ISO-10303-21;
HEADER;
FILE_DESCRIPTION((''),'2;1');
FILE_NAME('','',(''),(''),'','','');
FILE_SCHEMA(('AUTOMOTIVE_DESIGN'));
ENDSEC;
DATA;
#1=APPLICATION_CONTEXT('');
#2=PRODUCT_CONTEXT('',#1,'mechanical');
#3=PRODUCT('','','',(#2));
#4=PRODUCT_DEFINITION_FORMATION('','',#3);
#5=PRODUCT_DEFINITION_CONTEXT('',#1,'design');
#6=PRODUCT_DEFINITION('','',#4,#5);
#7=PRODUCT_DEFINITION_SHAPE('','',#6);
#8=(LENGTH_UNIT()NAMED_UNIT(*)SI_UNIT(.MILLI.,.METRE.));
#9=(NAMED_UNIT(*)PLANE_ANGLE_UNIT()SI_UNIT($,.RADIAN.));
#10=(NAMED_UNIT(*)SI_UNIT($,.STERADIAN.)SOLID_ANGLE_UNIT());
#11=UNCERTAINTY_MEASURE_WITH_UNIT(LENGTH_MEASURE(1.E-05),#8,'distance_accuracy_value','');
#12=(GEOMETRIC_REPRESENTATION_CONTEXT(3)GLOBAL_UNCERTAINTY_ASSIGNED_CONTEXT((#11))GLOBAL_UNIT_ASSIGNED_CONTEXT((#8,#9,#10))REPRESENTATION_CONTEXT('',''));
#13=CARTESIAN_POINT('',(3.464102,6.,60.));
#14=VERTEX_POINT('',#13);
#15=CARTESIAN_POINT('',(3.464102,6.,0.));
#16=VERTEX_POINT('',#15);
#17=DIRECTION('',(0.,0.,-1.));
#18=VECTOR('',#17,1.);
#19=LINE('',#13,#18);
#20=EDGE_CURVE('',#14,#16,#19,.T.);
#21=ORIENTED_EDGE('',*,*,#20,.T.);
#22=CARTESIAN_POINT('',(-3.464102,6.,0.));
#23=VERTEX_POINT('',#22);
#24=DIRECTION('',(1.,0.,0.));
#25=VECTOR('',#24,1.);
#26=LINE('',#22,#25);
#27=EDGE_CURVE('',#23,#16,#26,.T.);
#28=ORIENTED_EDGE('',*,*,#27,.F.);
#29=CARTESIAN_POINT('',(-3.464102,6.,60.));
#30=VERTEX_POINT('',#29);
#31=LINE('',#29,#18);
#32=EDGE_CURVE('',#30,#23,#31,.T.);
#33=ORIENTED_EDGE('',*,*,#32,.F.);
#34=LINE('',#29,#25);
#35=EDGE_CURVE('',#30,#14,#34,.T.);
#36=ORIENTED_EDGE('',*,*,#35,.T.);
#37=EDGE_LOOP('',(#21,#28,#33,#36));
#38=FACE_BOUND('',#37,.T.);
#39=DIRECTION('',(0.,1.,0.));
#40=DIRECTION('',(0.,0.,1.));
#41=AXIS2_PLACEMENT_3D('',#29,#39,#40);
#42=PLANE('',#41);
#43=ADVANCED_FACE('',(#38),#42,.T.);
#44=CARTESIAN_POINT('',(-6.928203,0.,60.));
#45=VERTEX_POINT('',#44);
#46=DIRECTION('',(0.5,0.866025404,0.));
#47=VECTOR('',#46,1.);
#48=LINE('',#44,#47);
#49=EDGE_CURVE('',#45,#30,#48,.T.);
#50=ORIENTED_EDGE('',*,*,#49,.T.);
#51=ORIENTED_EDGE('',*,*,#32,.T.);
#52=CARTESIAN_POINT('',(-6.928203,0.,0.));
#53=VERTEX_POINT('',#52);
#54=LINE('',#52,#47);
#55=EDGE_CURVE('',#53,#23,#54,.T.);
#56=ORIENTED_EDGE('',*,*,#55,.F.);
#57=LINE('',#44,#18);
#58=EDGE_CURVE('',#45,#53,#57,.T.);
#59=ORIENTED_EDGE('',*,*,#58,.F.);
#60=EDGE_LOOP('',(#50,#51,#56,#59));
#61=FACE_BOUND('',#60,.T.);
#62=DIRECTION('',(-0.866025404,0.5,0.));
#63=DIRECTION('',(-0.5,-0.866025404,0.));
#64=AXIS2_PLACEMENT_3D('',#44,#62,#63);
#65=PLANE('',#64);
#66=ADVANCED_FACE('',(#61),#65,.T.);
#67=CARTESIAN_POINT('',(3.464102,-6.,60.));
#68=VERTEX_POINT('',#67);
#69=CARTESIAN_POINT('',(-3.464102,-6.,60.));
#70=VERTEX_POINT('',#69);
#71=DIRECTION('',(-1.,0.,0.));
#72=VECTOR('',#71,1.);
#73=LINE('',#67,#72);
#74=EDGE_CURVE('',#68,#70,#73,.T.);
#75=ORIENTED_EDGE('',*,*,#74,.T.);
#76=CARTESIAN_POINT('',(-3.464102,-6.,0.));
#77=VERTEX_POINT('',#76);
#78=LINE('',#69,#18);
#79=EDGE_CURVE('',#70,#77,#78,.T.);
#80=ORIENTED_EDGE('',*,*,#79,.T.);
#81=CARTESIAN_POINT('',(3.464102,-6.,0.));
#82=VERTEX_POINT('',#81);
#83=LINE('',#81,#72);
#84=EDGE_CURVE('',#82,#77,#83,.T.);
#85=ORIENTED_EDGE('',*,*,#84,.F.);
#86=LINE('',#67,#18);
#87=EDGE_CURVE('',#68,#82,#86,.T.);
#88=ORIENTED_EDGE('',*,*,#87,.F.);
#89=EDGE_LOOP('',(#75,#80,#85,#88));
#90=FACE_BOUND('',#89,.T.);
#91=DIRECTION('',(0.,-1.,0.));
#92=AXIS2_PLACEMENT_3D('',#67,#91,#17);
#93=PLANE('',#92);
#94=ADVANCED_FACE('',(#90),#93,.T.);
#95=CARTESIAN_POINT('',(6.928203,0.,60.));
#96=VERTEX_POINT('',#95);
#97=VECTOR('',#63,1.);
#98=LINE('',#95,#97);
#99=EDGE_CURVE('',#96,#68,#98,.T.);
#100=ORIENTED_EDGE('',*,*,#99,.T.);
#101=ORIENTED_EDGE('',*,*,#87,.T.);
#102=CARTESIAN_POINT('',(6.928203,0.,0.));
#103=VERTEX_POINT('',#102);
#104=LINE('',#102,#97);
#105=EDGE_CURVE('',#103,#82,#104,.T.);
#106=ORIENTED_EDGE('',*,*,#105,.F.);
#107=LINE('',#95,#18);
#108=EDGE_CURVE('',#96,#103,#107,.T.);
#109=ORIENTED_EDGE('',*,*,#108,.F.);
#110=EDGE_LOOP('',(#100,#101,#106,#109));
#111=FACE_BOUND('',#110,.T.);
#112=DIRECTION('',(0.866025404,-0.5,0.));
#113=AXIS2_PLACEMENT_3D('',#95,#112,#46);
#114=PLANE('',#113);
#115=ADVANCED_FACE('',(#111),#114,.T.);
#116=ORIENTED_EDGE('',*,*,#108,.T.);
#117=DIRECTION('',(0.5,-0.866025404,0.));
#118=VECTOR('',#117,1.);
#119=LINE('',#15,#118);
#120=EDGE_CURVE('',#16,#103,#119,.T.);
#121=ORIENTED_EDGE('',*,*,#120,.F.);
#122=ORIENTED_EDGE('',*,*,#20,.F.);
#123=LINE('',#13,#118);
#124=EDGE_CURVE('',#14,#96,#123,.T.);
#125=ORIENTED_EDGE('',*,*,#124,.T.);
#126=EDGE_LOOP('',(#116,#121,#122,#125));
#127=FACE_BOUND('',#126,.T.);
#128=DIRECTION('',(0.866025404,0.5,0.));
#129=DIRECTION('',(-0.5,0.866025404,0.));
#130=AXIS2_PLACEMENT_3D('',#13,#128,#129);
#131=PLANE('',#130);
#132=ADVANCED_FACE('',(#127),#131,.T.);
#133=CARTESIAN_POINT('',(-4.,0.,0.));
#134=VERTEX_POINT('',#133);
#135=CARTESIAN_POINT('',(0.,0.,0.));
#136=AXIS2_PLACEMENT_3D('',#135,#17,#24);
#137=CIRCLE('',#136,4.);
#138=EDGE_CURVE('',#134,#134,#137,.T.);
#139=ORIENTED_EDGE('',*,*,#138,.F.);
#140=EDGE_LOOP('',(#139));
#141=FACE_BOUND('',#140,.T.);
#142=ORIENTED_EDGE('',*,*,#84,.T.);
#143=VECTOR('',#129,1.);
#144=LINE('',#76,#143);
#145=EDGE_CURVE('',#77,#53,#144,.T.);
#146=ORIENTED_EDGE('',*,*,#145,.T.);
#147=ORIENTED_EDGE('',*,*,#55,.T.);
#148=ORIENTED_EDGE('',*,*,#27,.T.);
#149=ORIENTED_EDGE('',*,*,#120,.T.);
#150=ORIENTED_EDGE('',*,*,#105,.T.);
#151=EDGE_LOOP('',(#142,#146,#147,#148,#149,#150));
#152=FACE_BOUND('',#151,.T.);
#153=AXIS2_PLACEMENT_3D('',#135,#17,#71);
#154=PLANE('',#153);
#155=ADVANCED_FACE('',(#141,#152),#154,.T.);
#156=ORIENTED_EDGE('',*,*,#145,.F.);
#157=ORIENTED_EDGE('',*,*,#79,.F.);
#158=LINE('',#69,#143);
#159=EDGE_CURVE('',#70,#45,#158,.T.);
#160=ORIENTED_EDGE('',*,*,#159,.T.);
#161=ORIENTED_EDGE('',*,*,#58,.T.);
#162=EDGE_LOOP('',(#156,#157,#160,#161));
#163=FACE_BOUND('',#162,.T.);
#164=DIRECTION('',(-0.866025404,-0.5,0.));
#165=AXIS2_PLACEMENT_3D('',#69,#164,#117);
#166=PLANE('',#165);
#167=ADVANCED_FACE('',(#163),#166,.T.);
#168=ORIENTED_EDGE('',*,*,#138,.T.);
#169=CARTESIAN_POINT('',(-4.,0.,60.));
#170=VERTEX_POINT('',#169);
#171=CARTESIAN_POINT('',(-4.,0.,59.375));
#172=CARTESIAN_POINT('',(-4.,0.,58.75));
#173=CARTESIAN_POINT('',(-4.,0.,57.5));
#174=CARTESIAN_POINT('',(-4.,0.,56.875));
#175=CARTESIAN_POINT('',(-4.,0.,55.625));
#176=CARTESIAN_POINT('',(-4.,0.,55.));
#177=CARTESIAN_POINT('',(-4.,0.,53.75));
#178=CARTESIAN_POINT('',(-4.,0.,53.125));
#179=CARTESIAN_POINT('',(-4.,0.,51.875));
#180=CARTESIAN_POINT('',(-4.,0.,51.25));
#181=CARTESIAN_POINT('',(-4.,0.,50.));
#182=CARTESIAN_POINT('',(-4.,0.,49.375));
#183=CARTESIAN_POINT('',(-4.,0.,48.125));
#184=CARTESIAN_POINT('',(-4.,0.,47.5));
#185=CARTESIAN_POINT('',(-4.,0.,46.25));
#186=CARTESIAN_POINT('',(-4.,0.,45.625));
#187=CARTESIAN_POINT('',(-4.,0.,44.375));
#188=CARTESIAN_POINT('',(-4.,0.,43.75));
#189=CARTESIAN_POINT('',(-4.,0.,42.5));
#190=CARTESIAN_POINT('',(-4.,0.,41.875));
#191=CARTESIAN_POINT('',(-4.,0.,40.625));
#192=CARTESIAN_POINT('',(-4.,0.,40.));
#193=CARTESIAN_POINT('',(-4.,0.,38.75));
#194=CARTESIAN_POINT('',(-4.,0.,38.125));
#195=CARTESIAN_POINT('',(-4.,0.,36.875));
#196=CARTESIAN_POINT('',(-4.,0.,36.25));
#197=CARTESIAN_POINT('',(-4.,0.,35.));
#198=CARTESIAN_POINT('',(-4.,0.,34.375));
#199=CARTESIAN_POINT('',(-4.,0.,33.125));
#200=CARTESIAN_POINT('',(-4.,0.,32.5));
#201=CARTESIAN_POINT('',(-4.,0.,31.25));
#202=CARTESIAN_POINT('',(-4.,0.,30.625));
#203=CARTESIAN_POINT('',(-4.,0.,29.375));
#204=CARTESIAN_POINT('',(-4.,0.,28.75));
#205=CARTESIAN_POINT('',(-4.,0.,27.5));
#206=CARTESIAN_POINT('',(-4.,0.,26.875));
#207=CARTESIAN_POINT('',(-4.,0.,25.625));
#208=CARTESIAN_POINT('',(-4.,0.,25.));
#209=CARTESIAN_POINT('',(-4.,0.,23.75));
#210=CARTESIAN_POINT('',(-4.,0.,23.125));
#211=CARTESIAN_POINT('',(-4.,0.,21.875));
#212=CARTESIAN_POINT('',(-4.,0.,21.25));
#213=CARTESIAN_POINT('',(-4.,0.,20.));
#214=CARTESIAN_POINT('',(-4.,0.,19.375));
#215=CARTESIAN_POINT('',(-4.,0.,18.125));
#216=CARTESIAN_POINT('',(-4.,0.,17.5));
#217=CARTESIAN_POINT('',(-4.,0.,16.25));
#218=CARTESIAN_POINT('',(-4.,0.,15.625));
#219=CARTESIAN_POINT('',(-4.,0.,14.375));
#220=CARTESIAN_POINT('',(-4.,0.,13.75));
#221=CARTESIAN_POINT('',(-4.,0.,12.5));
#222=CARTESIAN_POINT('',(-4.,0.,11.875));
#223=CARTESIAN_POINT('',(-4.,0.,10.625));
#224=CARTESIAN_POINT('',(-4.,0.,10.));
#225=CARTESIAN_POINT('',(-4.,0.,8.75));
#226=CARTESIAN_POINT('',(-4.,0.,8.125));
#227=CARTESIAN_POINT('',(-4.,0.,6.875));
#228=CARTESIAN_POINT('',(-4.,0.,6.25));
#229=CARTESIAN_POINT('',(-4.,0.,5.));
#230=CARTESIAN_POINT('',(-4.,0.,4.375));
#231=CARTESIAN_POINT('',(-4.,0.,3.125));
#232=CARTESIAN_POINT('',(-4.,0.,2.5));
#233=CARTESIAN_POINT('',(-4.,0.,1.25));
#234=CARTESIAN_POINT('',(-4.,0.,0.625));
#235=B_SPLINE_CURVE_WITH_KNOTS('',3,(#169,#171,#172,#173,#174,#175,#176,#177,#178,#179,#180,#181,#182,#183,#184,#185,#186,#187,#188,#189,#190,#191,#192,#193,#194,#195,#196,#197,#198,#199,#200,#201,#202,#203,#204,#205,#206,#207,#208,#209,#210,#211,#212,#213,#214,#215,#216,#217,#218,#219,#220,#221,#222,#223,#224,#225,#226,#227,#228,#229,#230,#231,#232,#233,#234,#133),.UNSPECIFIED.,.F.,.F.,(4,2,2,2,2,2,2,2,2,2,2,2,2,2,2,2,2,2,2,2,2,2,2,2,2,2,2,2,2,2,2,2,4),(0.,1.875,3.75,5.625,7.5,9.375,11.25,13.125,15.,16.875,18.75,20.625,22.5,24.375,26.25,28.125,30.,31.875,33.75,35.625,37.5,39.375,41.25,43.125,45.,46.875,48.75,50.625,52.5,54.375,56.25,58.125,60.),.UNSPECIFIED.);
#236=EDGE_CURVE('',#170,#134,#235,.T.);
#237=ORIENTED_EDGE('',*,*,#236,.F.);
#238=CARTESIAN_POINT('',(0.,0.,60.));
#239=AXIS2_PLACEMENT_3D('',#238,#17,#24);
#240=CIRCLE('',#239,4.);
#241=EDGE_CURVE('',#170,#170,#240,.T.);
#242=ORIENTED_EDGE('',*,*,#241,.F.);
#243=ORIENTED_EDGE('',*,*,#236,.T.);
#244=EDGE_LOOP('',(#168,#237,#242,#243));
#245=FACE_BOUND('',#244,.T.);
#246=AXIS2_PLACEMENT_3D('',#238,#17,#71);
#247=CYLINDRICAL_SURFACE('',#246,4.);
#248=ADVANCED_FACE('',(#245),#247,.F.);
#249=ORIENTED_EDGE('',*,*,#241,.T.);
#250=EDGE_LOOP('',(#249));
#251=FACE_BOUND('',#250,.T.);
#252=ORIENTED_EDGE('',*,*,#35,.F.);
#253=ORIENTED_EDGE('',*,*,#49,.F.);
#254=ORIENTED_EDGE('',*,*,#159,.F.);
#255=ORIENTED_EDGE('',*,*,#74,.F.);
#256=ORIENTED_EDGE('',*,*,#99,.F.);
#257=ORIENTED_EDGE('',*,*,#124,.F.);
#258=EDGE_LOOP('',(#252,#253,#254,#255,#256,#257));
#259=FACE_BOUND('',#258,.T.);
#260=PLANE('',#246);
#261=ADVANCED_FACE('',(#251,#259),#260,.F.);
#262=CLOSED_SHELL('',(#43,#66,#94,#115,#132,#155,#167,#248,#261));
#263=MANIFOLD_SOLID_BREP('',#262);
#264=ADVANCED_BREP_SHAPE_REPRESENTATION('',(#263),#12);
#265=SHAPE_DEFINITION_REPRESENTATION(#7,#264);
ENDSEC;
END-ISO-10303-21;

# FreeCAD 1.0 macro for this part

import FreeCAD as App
import Part
import Sketcher

V = App.Vector
Q = App.Units.Quantity


def add_polygon(sketch, points):
    """Adds a closed chain of lines whose ends are joined by coincident constraints."""
    first, n = sketch.GeometryCount, len(points)
    for a, b in zip(points, points[1:] + points[:1]):
        sketch.addGeometry(Part.LineSegment(App.Vector(*a, 0), App.Vector(*b, 0)), False)
    for i in range(n):
        sketch.addConstraint(Sketcher.Constraint("Coincident", first + i, 2, first + (i + 1) % n, 1))

doc = App.newDocument("Part")
body = doc.addObject("PartDesign::Body", "Body")

# Sketch on XY plane
sketch1 = doc.addObject("Sketcher::SketchObject", "Sketch")
body.addObject(sketch1)
sketch1.AttachmentSupport = (doc.XY_Plane, [""])
sketch1.MapMode = "FlatFace"
add_polygon(sketch1, [(-3.5, -6), (-6.9, 0), (-3.5, 6), (3.5, 6), (6.9, 0), (3.5, -6)])  # lines 0-5
sketch1.addGeometry(Part.Circle(V(0, 0, 0), V(0, 0, 1), 4), False)  # 6
sketch1.addConstraint(Sketcher.Constraint("Horizontal", 2))
sketch1.addConstraint(Sketcher.Constraint("Horizontal", 5))
sketch1.addConstraint(Sketcher.Constraint("Coincident", 6, 3, -1, 1))
sketch1.addConstraint(Sketcher.Constraint("Symmetric", 0, 2, 3, 2, -1, 1))
sketch1.addConstraint(Sketcher.Constraint("Symmetric", 1, 2, 4, 2, -1, 1))
sketch1.addConstraint(Sketcher.Constraint("PointOnObject", 0, 2, -1))
sketch1.addConstraint(Sketcher.Constraint("Parallel", 0, 3))
sketch1.addConstraint(Sketcher.Constraint("Vertical", 2, 2, 4, 2))
sketch1.addConstraint(Sketcher.Constraint("Diameter", 6, 8.0))
sketch1.addConstraint(Sketcher.Constraint("Angle", 0, Q("120 deg")))
sketch1.addConstraint(Sketcher.Constraint("DistanceY", -1, 1, 1, 2, 6.0))
sketch1.addConstraint(Sketcher.Constraint("DistanceX", 1, 2, -1, 1, 3.464102))
pad1 = doc.addObject("PartDesign::Pad", "Pad")
body.addObject(pad1)
pad1.Profile = sketch1
pad1.Length = 60

doc.recompute()
